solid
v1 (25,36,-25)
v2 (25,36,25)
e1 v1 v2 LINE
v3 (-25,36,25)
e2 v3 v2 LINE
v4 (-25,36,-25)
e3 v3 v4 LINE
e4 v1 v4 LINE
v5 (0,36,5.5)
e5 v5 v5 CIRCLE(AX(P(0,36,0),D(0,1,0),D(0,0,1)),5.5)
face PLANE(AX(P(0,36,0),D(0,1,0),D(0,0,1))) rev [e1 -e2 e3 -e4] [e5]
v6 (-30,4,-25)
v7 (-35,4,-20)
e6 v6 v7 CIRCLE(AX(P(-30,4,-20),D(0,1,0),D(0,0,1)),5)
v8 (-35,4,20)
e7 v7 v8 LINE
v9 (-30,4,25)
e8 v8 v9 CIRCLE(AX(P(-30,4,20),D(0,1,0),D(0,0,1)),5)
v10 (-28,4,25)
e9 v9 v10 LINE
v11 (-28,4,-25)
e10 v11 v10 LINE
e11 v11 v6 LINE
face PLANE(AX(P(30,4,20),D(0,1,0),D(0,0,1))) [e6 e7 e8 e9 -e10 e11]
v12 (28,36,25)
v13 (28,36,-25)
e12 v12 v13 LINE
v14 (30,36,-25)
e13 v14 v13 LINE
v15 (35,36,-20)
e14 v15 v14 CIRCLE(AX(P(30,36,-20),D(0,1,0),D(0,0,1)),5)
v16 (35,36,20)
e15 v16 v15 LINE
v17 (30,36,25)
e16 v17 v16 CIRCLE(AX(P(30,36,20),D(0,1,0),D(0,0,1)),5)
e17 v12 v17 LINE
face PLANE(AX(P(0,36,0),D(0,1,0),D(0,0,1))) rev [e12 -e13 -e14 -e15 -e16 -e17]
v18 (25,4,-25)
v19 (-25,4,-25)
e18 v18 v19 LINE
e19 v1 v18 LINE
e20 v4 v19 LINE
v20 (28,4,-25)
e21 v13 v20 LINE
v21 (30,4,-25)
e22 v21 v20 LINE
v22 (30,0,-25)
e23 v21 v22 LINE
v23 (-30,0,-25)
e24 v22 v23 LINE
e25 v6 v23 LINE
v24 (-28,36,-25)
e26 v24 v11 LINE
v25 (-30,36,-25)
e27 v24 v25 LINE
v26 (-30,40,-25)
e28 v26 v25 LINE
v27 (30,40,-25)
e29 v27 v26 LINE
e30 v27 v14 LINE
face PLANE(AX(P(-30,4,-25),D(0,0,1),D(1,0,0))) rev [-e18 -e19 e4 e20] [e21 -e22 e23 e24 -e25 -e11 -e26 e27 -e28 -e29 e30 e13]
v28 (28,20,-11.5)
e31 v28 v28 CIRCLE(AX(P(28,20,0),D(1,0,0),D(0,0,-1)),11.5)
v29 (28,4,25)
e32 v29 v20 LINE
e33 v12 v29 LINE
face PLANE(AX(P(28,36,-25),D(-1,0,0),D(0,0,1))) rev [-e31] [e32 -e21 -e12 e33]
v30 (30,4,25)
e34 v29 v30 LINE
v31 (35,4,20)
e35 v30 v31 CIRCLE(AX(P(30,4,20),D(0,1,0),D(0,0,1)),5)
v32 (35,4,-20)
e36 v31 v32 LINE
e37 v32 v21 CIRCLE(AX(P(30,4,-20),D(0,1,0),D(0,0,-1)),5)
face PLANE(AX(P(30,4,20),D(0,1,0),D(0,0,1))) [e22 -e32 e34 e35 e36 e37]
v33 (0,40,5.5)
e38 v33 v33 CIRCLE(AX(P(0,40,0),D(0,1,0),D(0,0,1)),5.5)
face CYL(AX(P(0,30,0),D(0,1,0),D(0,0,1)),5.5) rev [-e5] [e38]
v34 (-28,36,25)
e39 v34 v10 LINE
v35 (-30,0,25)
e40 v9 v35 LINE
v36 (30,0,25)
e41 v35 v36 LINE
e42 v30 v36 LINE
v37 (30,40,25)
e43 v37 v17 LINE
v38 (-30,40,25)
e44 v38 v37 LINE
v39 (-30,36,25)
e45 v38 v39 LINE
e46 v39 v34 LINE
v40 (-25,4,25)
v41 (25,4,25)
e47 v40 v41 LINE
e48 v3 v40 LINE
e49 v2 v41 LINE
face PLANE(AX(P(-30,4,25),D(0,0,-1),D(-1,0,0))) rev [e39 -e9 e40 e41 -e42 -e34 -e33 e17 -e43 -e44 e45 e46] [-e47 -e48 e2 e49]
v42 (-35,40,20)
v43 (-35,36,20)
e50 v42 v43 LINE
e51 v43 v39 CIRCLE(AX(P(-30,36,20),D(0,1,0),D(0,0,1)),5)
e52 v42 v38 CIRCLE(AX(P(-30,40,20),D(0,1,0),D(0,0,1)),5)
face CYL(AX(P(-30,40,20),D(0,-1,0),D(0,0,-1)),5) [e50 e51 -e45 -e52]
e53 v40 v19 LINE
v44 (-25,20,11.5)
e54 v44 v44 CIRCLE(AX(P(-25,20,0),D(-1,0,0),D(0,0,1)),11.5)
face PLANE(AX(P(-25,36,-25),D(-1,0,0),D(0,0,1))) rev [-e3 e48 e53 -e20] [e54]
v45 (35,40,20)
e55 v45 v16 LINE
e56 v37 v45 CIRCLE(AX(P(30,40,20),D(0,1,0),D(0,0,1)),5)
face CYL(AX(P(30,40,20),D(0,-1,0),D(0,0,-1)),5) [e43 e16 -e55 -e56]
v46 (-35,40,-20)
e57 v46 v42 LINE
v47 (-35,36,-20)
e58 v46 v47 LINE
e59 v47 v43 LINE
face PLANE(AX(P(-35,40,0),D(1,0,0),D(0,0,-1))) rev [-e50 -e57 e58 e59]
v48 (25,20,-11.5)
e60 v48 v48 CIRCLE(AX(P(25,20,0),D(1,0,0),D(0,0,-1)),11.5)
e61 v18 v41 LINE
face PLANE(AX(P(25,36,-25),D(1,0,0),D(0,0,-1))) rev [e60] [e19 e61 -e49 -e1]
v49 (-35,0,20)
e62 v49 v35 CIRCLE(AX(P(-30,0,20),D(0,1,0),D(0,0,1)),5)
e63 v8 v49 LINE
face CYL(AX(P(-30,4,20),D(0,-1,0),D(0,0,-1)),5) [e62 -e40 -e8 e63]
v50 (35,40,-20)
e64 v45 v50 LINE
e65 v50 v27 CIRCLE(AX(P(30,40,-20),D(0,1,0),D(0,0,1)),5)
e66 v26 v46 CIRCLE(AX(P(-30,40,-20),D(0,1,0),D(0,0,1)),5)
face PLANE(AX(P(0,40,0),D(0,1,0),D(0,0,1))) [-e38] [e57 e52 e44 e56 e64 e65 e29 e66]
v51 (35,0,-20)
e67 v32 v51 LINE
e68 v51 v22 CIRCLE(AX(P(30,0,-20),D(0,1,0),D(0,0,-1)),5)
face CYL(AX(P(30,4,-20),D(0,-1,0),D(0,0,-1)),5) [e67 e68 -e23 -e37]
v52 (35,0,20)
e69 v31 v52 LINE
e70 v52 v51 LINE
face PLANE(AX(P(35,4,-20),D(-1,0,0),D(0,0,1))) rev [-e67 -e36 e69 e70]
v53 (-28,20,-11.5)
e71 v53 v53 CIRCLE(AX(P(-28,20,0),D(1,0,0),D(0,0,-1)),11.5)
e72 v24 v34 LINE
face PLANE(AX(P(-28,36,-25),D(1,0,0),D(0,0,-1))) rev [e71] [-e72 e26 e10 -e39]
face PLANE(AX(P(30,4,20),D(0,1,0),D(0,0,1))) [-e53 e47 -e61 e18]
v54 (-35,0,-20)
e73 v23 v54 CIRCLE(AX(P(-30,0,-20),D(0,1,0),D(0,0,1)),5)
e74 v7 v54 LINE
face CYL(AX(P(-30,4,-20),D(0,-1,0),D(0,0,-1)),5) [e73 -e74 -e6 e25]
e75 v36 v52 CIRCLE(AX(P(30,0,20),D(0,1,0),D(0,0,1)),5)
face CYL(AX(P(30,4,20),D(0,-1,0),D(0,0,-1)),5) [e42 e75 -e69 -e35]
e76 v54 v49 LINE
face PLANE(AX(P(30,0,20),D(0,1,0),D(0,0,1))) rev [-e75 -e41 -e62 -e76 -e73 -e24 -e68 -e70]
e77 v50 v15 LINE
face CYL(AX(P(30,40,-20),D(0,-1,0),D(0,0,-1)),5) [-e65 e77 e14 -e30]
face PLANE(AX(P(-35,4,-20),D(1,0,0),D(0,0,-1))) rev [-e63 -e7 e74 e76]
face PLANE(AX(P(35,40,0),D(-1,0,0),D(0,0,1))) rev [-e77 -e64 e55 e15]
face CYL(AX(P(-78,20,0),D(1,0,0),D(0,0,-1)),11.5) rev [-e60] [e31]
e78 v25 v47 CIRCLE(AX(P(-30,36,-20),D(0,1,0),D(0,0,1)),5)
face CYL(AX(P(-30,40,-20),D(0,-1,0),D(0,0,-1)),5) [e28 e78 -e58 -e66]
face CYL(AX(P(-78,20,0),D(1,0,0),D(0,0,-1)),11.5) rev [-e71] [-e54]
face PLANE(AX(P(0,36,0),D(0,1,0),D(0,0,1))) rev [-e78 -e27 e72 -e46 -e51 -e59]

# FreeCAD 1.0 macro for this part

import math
import FreeCAD as App
import Part
import Sketcher

V = App.Vector
Q = App.Units.Quantity


def add_polygon(sketch, points):
    """Adds a closed chain of lines whose ends are joined by coincident constraints."""
    first, n = sketch.GeometryCount, len(points)
    for a, b in zip(points, points[1:] + points[:1]):
        sketch.addGeometry(Part.LineSegment(App.Vector(*a, 0), App.Vector(*b, 0)), False)
    for i in range(n):
        sketch.addConstraint(Sketcher.Constraint("Coincident", first + i, 2, first + (i + 1) % n, 1))

doc = App.newDocument("Part")
params = doc.addObject("Spreadsheet::Sheet", "Params")
for row, (alias, value) in enumerate([
    ("sketch1_radius", "5 mm"),
    ("sketch1_width", "60 mm"),
    ("sketch1_height", "40 mm"),
    ("pad1_length", "4 mm"),
    ("sketch2_width", "3 mm"),
    ("sketch2_height", "50 mm"),
    ("pad2_length", "32 mm"),
    ("sketch3_radius", "5 mm"),
    ("sketch3_width", "60 mm"),
    ("sketch3_height", "40 mm"),
    ("pad3_length", "4 mm"),
    ("sketch4_diameter", "23 mm"),
    ("pocket1_length", "106 mm"),
    ("sketch5_diameter", "11 mm"),
    ("pocket2_length", "10 mm"),
], start=1):
    params.set(f"A{row}", alias)
    params.set(f"B{row}", "=" + value)
    params.setAlias(f"B{row}", alias)

body = doc.addObject("PartDesign::Body", "Body")

sketch1 = doc.addObject("Sketcher::SketchObject", "Sketch")
body.addObject(sketch1)
sketch1.AttachmentSupport = (doc.XZ_Plane, [""])
sketch1.MapMode = "FlatFace"
sketch1.addGeometry(Part.LineSegment(V(30, -25, 0), V(-30, -25, 0)), False)
sketch1.addGeometry(Part.ArcOfCircle(Part.Circle(V(-30, -20, 0), V(0, 0, 1), 5), math.radians(180), math.radians(270)), False)
sketch1.addGeometry(Part.LineSegment(V(-35, -20, 0), V(-35, 20, 0)), False)
sketch1.addGeometry(Part.ArcOfCircle(Part.Circle(V(-30, 20, 0), V(0, 0, 1), 5), math.radians(90), math.radians(180)), False)
sketch1.addGeometry(Part.LineSegment(V(-30, 25, 0), V(30, 25, 0)), False)
sketch1.addGeometry(Part.ArcOfCircle(Part.Circle(V(30, 20, 0), V(0, 0, 1), 5), math.radians(0), math.radians(90)), False)
sketch1.addGeometry(Part.LineSegment(V(35, 20, 0), V(35, -20, 0)), False)
sketch1.addGeometry(Part.ArcOfCircle(Part.Circle(V(30, -20, 0), V(0, 0, 1), 5), math.radians(-90), math.radians(0)), False)
sketch1.addConstraint(Sketcher.Constraint("Tangent", 0, 2, 1, 2))
sketch1.addConstraint(Sketcher.Constraint("Tangent", 1, 1, 2, 1))
sketch1.addConstraint(Sketcher.Constraint("Tangent", 2, 2, 3, 2))
sketch1.addConstraint(Sketcher.Constraint("Tangent", 3, 1, 4, 1))
sketch1.addConstraint(Sketcher.Constraint("Tangent", 4, 2, 5, 2))
sketch1.addConstraint(Sketcher.Constraint("Tangent", 5, 1, 6, 1))
sketch1.addConstraint(Sketcher.Constraint("Tangent", 6, 2, 7, 2))
sketch1.addConstraint(Sketcher.Constraint("Tangent", 7, 1, 0, 1))
sketch1.addConstraint(Sketcher.Constraint("Horizontal", 0))
sketch1.addConstraint(Sketcher.Constraint("Vertical", 2))
sketch1.addConstraint(Sketcher.Constraint("Horizontal", 4))
sketch1.addConstraint(Sketcher.Constraint("Vertical", 6))
sketch1.addConstraint(Sketcher.Constraint("Equal", 1, 3))
sketch1.addConstraint(Sketcher.Constraint("Equal", 3, 5))
sketch1.addConstraint(Sketcher.Constraint("Equal", 5, 7))
sketch1.addConstraint(Sketcher.Constraint("Symmetric", 1, 3, 5, 3, -1, 1))
sketch1.addConstraint(Sketcher.Constraint("Radius", 1, Q("5 mm")))
sketch1.addConstraint(Sketcher.Constraint("DistanceX", 0, 2, 0, 1, Q("60 mm")))
sketch1.addConstraint(Sketcher.Constraint("DistanceY", 2, 1, 2, 2, Q("40 mm")))
sketch1.setExpression("Constraints[16]", "Params.sketch1_radius")
sketch1.setExpression("Constraints[17]", "Params.sketch1_width")
sketch1.setExpression("Constraints[18]", "Params.sketch1_height")
pad1 = doc.addObject("PartDesign::Pad", "Pad")
body.addObject(pad1)
pad1.Profile = sketch1
pad1.setExpression("Length", "Params.pad1_length")
pad1.Reversed = True

sketch2 = doc.addObject("Sketcher::SketchObject", "Sketch001")
body.addObject(sketch2)
sketch2.AttachmentSupport = (doc.XZ_Plane, [""])
sketch2.MapMode = "FlatFace"
sketch2.AttachmentOffset = App.Placement(V(0, 0, -4), App.Rotation())
add_polygon(sketch2, [(-28, -25), (-28, 25), (-25, 25), (-25, -25)])
add_polygon(sketch2, [(25, -25), (25, 25), (28, 25), (28, -25)])
sketch2.addConstraint(Sketcher.Constraint("Vertical", 0))
sketch2.addConstraint(Sketcher.Constraint("Horizontal", 1))
sketch2.addConstraint(Sketcher.Constraint("Vertical", 2))
sketch2.addConstraint(Sketcher.Constraint("Horizontal", 3))
sketch2.addConstraint(Sketcher.Constraint("Vertical", 4))
sketch2.addConstraint(Sketcher.Constraint("Horizontal", 5))
sketch2.addConstraint(Sketcher.Constraint("Vertical", 6))
sketch2.addConstraint(Sketcher.Constraint("Horizontal", 7))
sketch2.addConstraint(Sketcher.Constraint("Symmetric", 2, 2, 4, 2, -1, 1))
sketch2.addConstraint(Sketcher.Constraint("Symmetric", 0, 2, 6, 2, -1, 1))
sketch2.addConstraint(Sketcher.Constraint("Horizontal", 1, 2, 4, 2))
sketch2.addConstraint(Sketcher.Constraint("DistanceX", 1, 1, 1, 2, Q("3 mm")))
sketch2.addConstraint(Sketcher.Constraint("DistanceY", 0, 1, 0, 2, Q("50 mm")))
sketch2.addConstraint(Sketcher.Constraint("DistanceX", 0, 2, -1, 1, Q("28 mm")))
sketch2.setExpression("Constraints[19]", "Params.sketch2_width")
sketch2.setExpression("Constraints[20]", "Params.sketch2_height")
pad2 = doc.addObject("PartDesign::Pad", "Pad001")
body.addObject(pad2)
pad2.Profile = sketch2
pad2.setExpression("Length", "Params.pad2_length")
pad2.Reversed = True

sketch3 = doc.addObject("Sketcher::SketchObject", "Sketch002")
body.addObject(sketch3)
sketch3.AttachmentSupport = (doc.XZ_Plane, [""])
sketch3.MapMode = "FlatFace"
sketch3.AttachmentOffset = App.Placement(V(0, 0, -36), App.Rotation())
sketch3.addGeometry(Part.ArcOfCircle(Part.Circle(V(30, 20, 0), V(0, 0, 1), 5), math.radians(0), math.radians(90)), False)
sketch3.addGeometry(Part.LineSegment(V(35, 20, 0), V(35, -20, 0)), False)
sketch3.addGeometry(Part.ArcOfCircle(Part.Circle(V(30, -20, 0), V(0, 0, 1), 5), math.radians(-90), math.radians(0)), False)
sketch3.addGeometry(Part.LineSegment(V(30, -25, 0), V(-30, -25, 0)), False)
sketch3.addGeometry(Part.ArcOfCircle(Part.Circle(V(-30, -20, 0), V(0, 0, 1), 5), math.radians(180), math.radians(270)), False)
sketch3.addGeometry(Part.LineSegment(V(-35, -20, 0), V(-35, 20, 0)), False)
sketch3.addGeometry(Part.ArcOfCircle(Part.Circle(V(-30, 20, 0), V(0, 0, 1), 5), math.radians(90), math.radians(180)), False)
sketch3.addGeometry(Part.LineSegment(V(-30, 25, 0), V(30, 25, 0)), False)
sketch3.addConstraint(Sketcher.Constraint("Tangent", 0, 1, 1, 1))
sketch3.addConstraint(Sketcher.Constraint("Tangent", 1, 2, 2, 2))
sketch3.addConstraint(Sketcher.Constraint("Tangent", 2, 1, 3, 1))
sketch3.addConstraint(Sketcher.Constraint("Tangent", 3, 2, 4, 2))
sketch3.addConstraint(Sketcher.Constraint("Tangent", 4, 1, 5, 1))
sketch3.addConstraint(Sketcher.Constraint("Tangent", 5, 2, 6, 2))
sketch3.addConstraint(Sketcher.Constraint("Tangent", 6, 1, 7, 1))
sketch3.addConstraint(Sketcher.Constraint("Tangent", 7, 2, 0, 2))
sketch3.addConstraint(Sketcher.Constraint("Vertical", 1))
sketch3.addConstraint(Sketcher.Constraint("Horizontal", 3))
sketch3.addConstraint(Sketcher.Constraint("Vertical", 5))
sketch3.addConstraint(Sketcher.Constraint("Horizontal", 7))
sketch3.addConstraint(Sketcher.Constraint("Equal", 0, 2))
sketch3.addConstraint(Sketcher.Constraint("Equal", 2, 4))
sketch3.addConstraint(Sketcher.Constraint("Equal", 4, 6))
sketch3.addConstraint(Sketcher.Constraint("Symmetric", 0, 3, 4, 3, -1, 1))
sketch3.addConstraint(Sketcher.Constraint("Radius", 0, Q("5 mm")))
sketch3.addConstraint(Sketcher.Constraint("DistanceX", 3, 2, 3, 1, Q("60 mm")))
sketch3.addConstraint(Sketcher.Constraint("DistanceY", 1, 2, 1, 1, Q("40 mm")))
sketch3.setExpression("Constraints[16]", "Params.sketch3_radius")
sketch3.setExpression("Constraints[17]", "Params.sketch3_width")
sketch3.setExpression("Constraints[18]", "Params.sketch3_height")
pad3 = doc.addObject("PartDesign::Pad", "Pad002")
body.addObject(pad3)
pad3.Profile = sketch3
pad3.setExpression("Length", "Params.pad3_length")
pad3.Reversed = True

sketch4 = doc.addObject("Sketcher::SketchObject", "Sketch003")
body.addObject(sketch4)
sketch4.AttachmentSupport = (doc.YZ_Plane, [""])
sketch4.MapMode = "FlatFace"
sketch4.AttachmentOffset = App.Placement(V(0, 0, 28), App.Rotation())
sketch4.addGeometry(Part.Circle(V(20, 0, 0), V(0, 0, 1), 12), False)
sketch4.addConstraint(Sketcher.Constraint("PointOnObject", 0, 3, -1))
sketch4.addConstraint(Sketcher.Constraint("Diameter", 0, Q("23 mm")))
sketch4.addConstraint(Sketcher.Constraint("DistanceX", -1, 1, 0, 3, Q("20 mm")))
sketch4.setExpression("Constraints[1]", "Params.sketch4_diameter")
pocket1 = doc.addObject("PartDesign::Pocket", "Pocket")
body.addObject(pocket1)
pocket1.Profile = sketch4
pocket1.setExpression("Length", "Params.pocket1_length")

sketch5 = doc.addObject("Sketcher::SketchObject", "Sketch004")
body.addObject(sketch5)
sketch5.AttachmentSupport = (doc.XZ_Plane, [""])
sketch5.MapMode = "FlatFace"
sketch5.AttachmentOffset = App.Placement(V(0, 0, -40), App.Rotation())
sketch5.addGeometry(Part.Circle(V(0, 0, 0), V(0, 0, 1), 6), False)
sketch5.addConstraint(Sketcher.Constraint("Coincident", 0, 3, -1, 1))
sketch5.addConstraint(Sketcher.Constraint("Diameter", 0, Q("11 mm")))
sketch5.setExpression("Constraints[1]", "Params.sketch5_diameter")
pocket2 = doc.addObject("PartDesign::Pocket", "Pocket001")
body.addObject(pocket2)
pocket2.Profile = sketch5
pocket2.setExpression("Length", "Params.pocket2_length")
pocket2.Reversed = True

doc.recompute()
